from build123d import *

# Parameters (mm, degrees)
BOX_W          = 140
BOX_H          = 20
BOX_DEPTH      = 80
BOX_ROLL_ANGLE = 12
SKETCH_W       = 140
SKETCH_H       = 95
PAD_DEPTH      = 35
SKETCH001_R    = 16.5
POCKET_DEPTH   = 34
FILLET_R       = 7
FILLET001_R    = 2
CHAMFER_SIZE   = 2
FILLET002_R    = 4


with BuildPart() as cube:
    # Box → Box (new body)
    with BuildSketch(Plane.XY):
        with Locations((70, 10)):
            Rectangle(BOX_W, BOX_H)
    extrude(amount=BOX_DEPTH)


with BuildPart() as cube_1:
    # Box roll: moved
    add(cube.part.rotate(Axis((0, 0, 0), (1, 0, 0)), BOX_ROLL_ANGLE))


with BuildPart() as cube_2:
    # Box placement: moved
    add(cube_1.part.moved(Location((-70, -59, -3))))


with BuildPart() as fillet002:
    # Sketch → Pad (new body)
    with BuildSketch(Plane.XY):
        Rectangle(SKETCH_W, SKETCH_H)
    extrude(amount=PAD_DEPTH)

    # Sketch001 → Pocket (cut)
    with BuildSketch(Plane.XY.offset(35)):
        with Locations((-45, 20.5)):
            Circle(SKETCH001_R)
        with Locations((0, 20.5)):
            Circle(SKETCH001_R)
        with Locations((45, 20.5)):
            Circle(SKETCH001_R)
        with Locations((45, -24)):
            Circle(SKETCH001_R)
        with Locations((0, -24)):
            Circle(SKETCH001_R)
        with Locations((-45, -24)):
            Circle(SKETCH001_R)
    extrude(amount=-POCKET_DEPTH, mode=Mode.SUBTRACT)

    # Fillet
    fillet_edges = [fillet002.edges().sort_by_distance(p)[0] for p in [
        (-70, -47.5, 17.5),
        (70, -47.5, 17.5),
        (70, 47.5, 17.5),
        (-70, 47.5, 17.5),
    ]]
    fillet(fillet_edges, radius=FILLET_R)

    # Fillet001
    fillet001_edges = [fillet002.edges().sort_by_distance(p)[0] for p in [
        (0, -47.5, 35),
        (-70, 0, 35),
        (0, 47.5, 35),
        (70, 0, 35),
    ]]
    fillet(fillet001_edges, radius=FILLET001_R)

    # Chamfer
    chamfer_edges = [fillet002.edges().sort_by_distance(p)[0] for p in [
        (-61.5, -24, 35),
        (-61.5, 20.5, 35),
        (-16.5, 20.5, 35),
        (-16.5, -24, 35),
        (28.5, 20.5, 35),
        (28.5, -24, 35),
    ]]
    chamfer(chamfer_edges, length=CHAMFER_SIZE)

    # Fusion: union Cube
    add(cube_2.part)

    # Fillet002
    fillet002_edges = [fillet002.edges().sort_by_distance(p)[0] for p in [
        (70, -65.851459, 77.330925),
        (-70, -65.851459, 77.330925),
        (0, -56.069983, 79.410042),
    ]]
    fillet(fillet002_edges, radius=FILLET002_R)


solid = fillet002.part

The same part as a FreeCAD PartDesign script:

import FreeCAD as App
import Part
import Sketcher
from FreeCAD import Vector
Q = App.Units.Quantity


def edges_at(feature, points):
    """Names of the edges that pass closest to the given points."""
    edges = feature.Shape.Edges
    near = lambda p: min(range(len(edges)), key=lambda i: edges[i].distToShape(Part.Vertex(*p))[0])
    return sorted({f"Edge{near(p) + 1}" for p in points})


def add_polygon(sketch, points):
    """Adds a closed chain of lines whose ends are joined by coincident constraints."""
    first, n = sketch.GeometryCount, len(points)
    for a, b in zip(points, points[1:] + points[:1]):
        sketch.addGeometry(Part.LineSegment(App.Vector(*a, 0), App.Vector(*b, 0)), False)
    for i in range(n):
        sketch.addConstraint(Sketcher.Constraint("Coincident", first + i, 2, first + (i + 1) % n, 1))

doc = App.newDocument("Part")
params = doc.addObject("Spreadsheet::Sheet", "Params")
for row, (alias, value) in enumerate([
    ("sketch1_width", "140 mm"),
    ("sketch1_height", "20 mm"),
    ("pad1_length", "80 mm"),
    ("sketch2_width", "140 mm"),
    ("sketch2_height", "95 mm"),
    ("pad2_length", "35 mm"),
    ("sketch3_diameter", "33 mm"),
    ("pocket1_length", "34 mm"),
    ("fillet_radius", "7 mm"),
    ("fillet2_radius", "2 mm"),
    ("chamfer_size", "2 mm"),
    ("fillet3_radius", "4 mm"),
], start=1):
    params.set(f"A{row}", alias)
    params.set(f"B{row}", "=" + value)
    params.setAlias(f"B{row}", alias)

body = doc.addObject("PartDesign::Body", "Body")

# Sketch on XY plane
sketch1 = body.newObject("Sketcher::SketchObject", "Sketch")
sketch1.AttachmentSupport = (doc.getObject("XY_Plane"), [""])
sketch1.MapMode = "FlatFace"
add_polygon(sketch1, [(0, 20), (0, 0), (140, 0), (140, 20)])  # lines 0-3
sketch1.addConstraint([
    Sketcher.Constraint("Vertical", 0),
    Sketcher.Constraint("Horizontal", 1),
    Sketcher.Constraint("Vertical", 2),
    Sketcher.Constraint("Horizontal", 3),
    Sketcher.Constraint("Coincident", 0, 2, -1, 1),
    Sketcher.Constraint("DistanceX", 1, 1, 1, 2, Q("140 mm")),
    Sketcher.Constraint("DistanceY", 0, 2, 0, 1, Q("20 mm")),
])
sketch1.setExpression("Constraints[9]", "Params.sketch1_width")
sketch1.setExpression("Constraints[10]", "Params.sketch1_height")
pad1 = body.newObject("PartDesign::Pad", "Pad")
pad1.Profile = sketch1
pad1.setExpression("Length", "Params.pad1_length")
body2 = doc.addObject("PartDesign::Body", "Body001")
doc.recompute()

body.Placement = App.Placement(Vector(0, 0, 0), App.Rotation(Vector(1, 0, 0), 12))
boolean = body2.newObject("PartDesign::Boolean", "Boolean")
boolean.Type = "Fuse"
boolean.addObjects([body])
body3 = doc.addObject("PartDesign::Body", "Body002")
doc.recompute()

body2.Placement = App.Placement(Vector(-70, -59, -3), App.Rotation(Vector(0, 0, 1), 0))
boolean2 = body3.newObject("PartDesign::Boolean", "Boolean001")
boolean2.Type = "Fuse"
boolean2.addObjects([body2])
body4 = doc.addObject("PartDesign::Body", "Body003")

# Sketch on XY plane
sketch2 = body4.newObject("Sketcher::SketchObject", "Sketch001")
sketch2.AttachmentSupport = (doc.getObject("XY_Plane003"), [""])
sketch2.MapMode = "FlatFace"
add_polygon(sketch2, [(-70, 47.5), (-70, -47.5), (70, -47.5), (70, 47.5)])  # lines 0-3
sketch2.addConstraint([
    Sketcher.Constraint("Vertical", 0),
    Sketcher.Constraint("Horizontal", 1),
    Sketcher.Constraint("Vertical", 2),
    Sketcher.Constraint("Horizontal", 3),
    Sketcher.Constraint("Symmetric", 0, 2, 2, 2, -1, 1),
    Sketcher.Constraint("DistanceX", 1, 1, 1, 2, Q("140 mm")),
    Sketcher.Constraint("DistanceY", 0, 2, 0, 1, Q("95 mm")),
])
sketch2.setExpression("Constraints[9]", "Params.sketch2_width")
sketch2.setExpression("Constraints[10]", "Params.sketch2_height")
pad2 = body4.newObject("PartDesign::Pad", "Pad001")
pad2.Profile = sketch2
pad2.setExpression("Length", "Params.pad2_length")

# Sketch on XY plane
sketch3 = body4.newObject("Sketcher::SketchObject", "Sketch002")
sketch3.AttachmentSupport = (doc.getObject("XY_Plane003"), [""])
sketch3.MapMode = "FlatFace"
sketch3.AttachmentOffset = App.Placement(Vector(0, 0, 35), App.Rotation())
sketch3.addGeometry([
    Part.Circle(Vector(-45, 20.5, 0), Vector(0, 0, 1), 16.5),  # 0
    Part.Circle(Vector(0, 20.5, 0), Vector(0, 0, 1), 16.5),  # 1
    Part.Circle(Vector(45, 20.5, 0), Vector(0, 0, 1), 16.5),  # 2
    Part.Circle(Vector(45, -24, 0), Vector(0, 0, 1), 16.5),  # 3
    Part.Circle(Vector(0, -24, 0), Vector(0, 0, 1), 16.5),  # 4
    Part.Circle(Vector(-45, -24, 0), Vector(0, 0, 1), 16.5),  # 5
], False)
sketch3.addConstraint([
    Sketcher.Constraint("Equal", 0, 1),
    Sketcher.Constraint("Equal", 1, 2),
    Sketcher.Constraint("Equal", 2, 3),
    Sketcher.Constraint("Equal", 3, 4),
    Sketcher.Constraint("Equal", 4, 5),
    Sketcher.Constraint("Symmetric", 0, 3, 2, 3, -2),
    Sketcher.Constraint("Symmetric", 3, 3, 5, 3, -2),
    Sketcher.Constraint("PointOnObject", 1, 3, -2),
    Sketcher.Constraint("PointOnObject", 4, 3, -2),
    Sketcher.Constraint("Horizontal", 0, 3, 1, 3),
    Sketcher.Constraint("Horizontal", 3, 3, 4, 3),
    Sketcher.Constraint("Vertical", 2, 3, 3, 3),
    Sketcher.Constraint("Diameter", 0, Q("33 mm")),
    Sketcher.Constraint("DistanceX", 0, 3, -1, 1, Q("45 mm")),
    Sketcher.Constraint("DistanceY", 3, 3, -1, 1, Q("24 mm")),
    Sketcher.Constraint("DistanceY", -1, 1, 0, 3, Q("20.5 mm")),
])
sketch3.setExpression("Constraints[12]", "Params.sketch3_diameter")
pocket1 = body4.newObject("PartDesign::Pocket", "Pocket")
pocket1.Profile = sketch3
pocket1.setExpression("Length", "Params.pocket1_length")
doc.recompute()

fillet = body4.newObject("PartDesign::Fillet", "Fillet")
fillet.Base = (pocket1, edges_at(pocket1, [
    (-70, -47.5, 17.5),
    (70, -47.5, 17.5),
    (70, 47.5, 17.5),
    (-70, 47.5, 17.5),
]))
fillet.setExpression("Radius", "Params.fillet_radius")
doc.recompute()

fillet2 = body4.newObject("PartDesign::Fillet", "Fillet001")
fillet2.Base = (fillet, edges_at(fillet, [
    (0, -47.5, 35),
    (-70, 0, 35),
    (0, 47.5, 35),
    (70, 0, 35),
]))
fillet2.setExpression("Radius", "Params.fillet2_radius")
doc.recompute()

chamfer = body4.newObject("PartDesign::Chamfer", "Chamfer")
chamfer.Base = (fillet2, edges_at(fillet2, [
    (-61.5, -24, 35),
    (-61.5, 20.5, 35),
    (-16.5, 20.5, 35),
    (-16.5, -24, 35),
    (28.5, 20.5, 35),
    (28.5, -24, 35),
]))
chamfer.setExpression("Size", "Params.chamfer_size")
doc.recompute()

boolean3 = body4.newObject("PartDesign::Boolean", "Boolean002")
boolean3.Type = "Fuse"
boolean3.addObjects([body3])
doc.recompute()

fillet3 = body4.newObject("PartDesign::Fillet", "Fillet002")
fillet3.Base = (boolean3, edges_at(boolean3, [(70, -65.851, 77.331), (-70, -65.851, 77.331), (0, -56.07, 79.41)]))
fillet3.setExpression("Radius", "Params.fillet3_radius")

doc.recompute()
